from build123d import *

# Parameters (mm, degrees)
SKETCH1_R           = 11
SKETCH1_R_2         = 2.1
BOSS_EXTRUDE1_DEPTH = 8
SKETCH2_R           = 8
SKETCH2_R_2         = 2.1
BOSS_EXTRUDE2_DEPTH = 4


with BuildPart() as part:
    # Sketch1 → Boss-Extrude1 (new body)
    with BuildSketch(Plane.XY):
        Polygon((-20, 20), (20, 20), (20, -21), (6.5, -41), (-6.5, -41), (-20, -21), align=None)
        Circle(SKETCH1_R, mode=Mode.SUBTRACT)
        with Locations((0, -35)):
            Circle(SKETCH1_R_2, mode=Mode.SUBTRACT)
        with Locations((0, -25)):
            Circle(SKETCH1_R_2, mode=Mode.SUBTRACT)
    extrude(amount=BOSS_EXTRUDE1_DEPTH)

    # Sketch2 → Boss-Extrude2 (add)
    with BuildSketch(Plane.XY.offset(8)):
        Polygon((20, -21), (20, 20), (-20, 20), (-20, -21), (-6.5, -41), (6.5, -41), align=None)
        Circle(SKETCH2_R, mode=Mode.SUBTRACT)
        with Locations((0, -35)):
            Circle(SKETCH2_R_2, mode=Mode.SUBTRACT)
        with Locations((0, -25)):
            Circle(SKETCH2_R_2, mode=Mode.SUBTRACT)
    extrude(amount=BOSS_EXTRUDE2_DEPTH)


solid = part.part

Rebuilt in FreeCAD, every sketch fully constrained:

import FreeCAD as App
import Part
import Sketcher

V = App.Vector
Q = App.Units.Quantity


def add_polygon(sketch, points):
    """Adds a closed chain of lines whose ends are joined by coincident constraints."""
    first, n = sketch.GeometryCount, len(points)
    for a, b in zip(points, points[1:] + points[:1]):
        sketch.addGeometry(Part.LineSegment(App.Vector(*a, 0), App.Vector(*b, 0)), False)
    for i in range(n):
        sketch.addConstraint(Sketcher.Constraint("Coincident", first + i, 2, first + (i + 1) % n, 1))

doc = App.newDocument("Part")
body = doc.addObject("PartDesign::Body", "Body")

sketch1 = body.newObject("Sketcher::SketchObject", "Sketch")
sketch1.AttachmentSupport = (doc.getObject("XY_Plane"), [""])
sketch1.MapMode = "FlatFace"
add_polygon(sketch1, [(20, 20), (-20, 20), (-20, -21), (-6.5, -41), (6.5, -41), (20, -21)])
sketch1.addGeometry(Part.Circle(V(0, -35, 0), V(0, 0, 1), 2.1), False)
sketch1.addGeometry(Part.Circle(V(0, -25, 0), V(0, 0, 1), 2.1), False)
sketch1.addGeometry(Part.Circle(V(0, 0, 0), V(0, 0, 1), 11), False)
sketch1.addConstraint([
    Sketcher.Constraint("Horizontal", 0),
    Sketcher.Constraint("Vertical", 1),
    Sketcher.Constraint("Horizontal", 3),
    Sketcher.Constraint("Vertical", 5),
    Sketcher.Constraint("Coincident", 8, 3, -1, 1),
    Sketcher.Constraint("Equal", 6, 7),
    Sketcher.Constraint("Symmetric", 1, 2, 4, 2, -2),
    Sketcher.Constraint("PointOnObject", 6, 3, -2),
    Sketcher.Constraint("PointOnObject", 7, 3, -2),
    Sketcher.Constraint("Equal", 2, 4),
    Sketcher.Constraint("Diameter", 8, Q("22 mm")),
    Sketcher.Constraint("Diameter", 6, Q("4.2 mm")),
    Sketcher.Constraint("DistanceX", 0, 2, 0, 1, Q("40 mm")),
    Sketcher.Constraint("DistanceX", 3, 1, 3, 2, Q("13 mm")),
    Sketcher.Constraint("DistanceY", 1, 2, 1, 1, Q("41 mm")),
    Sketcher.Constraint("DistanceY", 6, 3, -1, 1, Q("35 mm")),
    Sketcher.Constraint("DistanceY", 7, 3, -1, 1, Q("25 mm")),
    Sketcher.Constraint("DistanceY", -1, 1, 0, 2, Q("20 mm")),
    Sketcher.Constraint("DistanceY", 2, 2, -1, 1, Q("41 mm")),
])
pad1 = body.newObject("PartDesign::Pad", "Pad")
pad1.Profile = sketch1
pad1.Length = 8

sketch2 = body.newObject("Sketcher::SketchObject", "Sketch001")
sketch2.AttachmentSupport = (doc.getObject("XY_Plane"), [""])
sketch2.MapMode = "FlatFace"
sketch2.AttachmentOffset = App.Placement(V(0, 0, 8), App.Rotation())
add_polygon(sketch2, [(20, -21), (20, 20), (-20, 20), (-20, -21), (-6.5, -41), (6.5, -41)])
sketch2.addGeometry(Part.Circle(V(0, -35, 0), V(0, 0, 1), 2.1), False)
sketch2.addGeometry(Part.Circle(V(0, -25, 0), V(0, 0, 1), 2.1), False)
sketch2.addGeometry(Part.Circle(V(0, 0, 0), V(0, 0, 1), 8), False)
sketch2.addConstraint([
    Sketcher.Constraint("Vertical", 0),
    Sketcher.Constraint("Horizontal", 1),
    Sketcher.Constraint("Vertical", 2),
    Sketcher.Constraint("Horizontal", 4),
    Sketcher.Constraint("Coincident", 8, 3, -1, 1),
    Sketcher.Constraint("Equal", 6, 7),
    Sketcher.Constraint("Symmetric", 2, 2, 5, 2, -2),
    Sketcher.Constraint("PointOnObject", 6, 3, -2),
    Sketcher.Constraint("PointOnObject", 7, 3, -2),
    Sketcher.Constraint("Equal", 3, 5),
    Sketcher.Constraint("Diameter", 8, Q("16 mm")),
    Sketcher.Constraint("Diameter", 6, Q("4.2 mm")),
    Sketcher.Constraint("DistanceX", 1, 2, 1, 1, Q("40 mm")),
    Sketcher.Constraint("DistanceX", 4, 1, 4, 2, Q("13 mm")),
    Sketcher.Constraint("DistanceY", 0, 1, 0, 2, Q("41 mm")),
    Sketcher.Constraint("DistanceY", 6, 3, -1, 1, Q("35 mm")),
    Sketcher.Constraint("DistanceY", 7, 3, -1, 1, Q("25 mm")),
    Sketcher.Constraint("DistanceY", -1, 1, 0, 2, Q("20 mm")),
    Sketcher.Constraint("DistanceY", 3, 2, -1, 1, Q("41 mm")),
])
pad2 = body.newObject("PartDesign::Pad", "Pad001")
pad2.Profile = sketch2
pad2.Length = 4

doc.recompute()
